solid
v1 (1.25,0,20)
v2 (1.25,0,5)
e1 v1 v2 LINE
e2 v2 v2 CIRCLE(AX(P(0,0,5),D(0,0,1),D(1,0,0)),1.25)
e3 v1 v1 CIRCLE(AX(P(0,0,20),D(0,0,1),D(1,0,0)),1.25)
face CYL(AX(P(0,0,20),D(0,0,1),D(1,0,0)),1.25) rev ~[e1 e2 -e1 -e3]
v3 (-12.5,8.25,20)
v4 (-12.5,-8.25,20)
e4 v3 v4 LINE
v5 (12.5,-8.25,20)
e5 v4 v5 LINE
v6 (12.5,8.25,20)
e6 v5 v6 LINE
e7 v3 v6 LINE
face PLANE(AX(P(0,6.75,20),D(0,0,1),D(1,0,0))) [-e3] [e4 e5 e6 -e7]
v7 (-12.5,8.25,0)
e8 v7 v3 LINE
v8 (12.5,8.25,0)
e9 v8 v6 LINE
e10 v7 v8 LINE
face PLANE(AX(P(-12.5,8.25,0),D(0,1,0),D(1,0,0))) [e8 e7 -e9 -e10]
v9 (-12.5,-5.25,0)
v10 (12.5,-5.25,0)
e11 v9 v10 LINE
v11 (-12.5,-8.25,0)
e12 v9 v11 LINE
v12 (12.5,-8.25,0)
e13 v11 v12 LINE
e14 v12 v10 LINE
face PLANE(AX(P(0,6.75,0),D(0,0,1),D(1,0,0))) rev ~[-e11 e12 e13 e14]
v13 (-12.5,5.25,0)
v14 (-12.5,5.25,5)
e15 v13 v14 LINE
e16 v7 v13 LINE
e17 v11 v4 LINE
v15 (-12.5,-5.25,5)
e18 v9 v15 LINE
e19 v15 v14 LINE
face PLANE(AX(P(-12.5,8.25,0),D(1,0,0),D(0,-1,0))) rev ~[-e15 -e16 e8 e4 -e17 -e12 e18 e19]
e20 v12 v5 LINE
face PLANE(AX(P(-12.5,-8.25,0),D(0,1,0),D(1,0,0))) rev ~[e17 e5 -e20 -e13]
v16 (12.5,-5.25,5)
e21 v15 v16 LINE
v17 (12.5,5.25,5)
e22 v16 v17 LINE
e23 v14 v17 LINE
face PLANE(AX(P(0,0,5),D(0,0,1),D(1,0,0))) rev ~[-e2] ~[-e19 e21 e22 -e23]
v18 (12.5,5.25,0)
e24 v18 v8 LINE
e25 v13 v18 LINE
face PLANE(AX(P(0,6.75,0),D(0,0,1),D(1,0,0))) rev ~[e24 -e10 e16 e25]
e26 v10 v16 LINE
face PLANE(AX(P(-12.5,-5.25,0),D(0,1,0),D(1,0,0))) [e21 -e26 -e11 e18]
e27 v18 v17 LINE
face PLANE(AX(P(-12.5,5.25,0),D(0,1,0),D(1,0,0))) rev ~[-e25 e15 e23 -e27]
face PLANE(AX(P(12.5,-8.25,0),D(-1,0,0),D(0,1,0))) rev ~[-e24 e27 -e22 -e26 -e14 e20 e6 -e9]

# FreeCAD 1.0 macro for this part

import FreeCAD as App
import Part
import Sketcher

V = App.Vector

doc = App.newDocument("Part")
body = doc.addObject("PartDesign::Body", "Body")

# Sketch on XY plane
sketch1 = body.newObject("Sketcher::SketchObject", "Sketch")
sketch1.AttachmentSupport = (doc.getObject("XY_Plane"), [""])
sketch1.MapMode = "FlatFace"
sketch1.addGeometry(Part.LineSegment(V(-12.5, 8.25, 0), V(-12.5, -8.25, 0)), False)
sketch1.addGeometry(Part.LineSegment(V(-12.5, -8.25, 0), V(12.5, -8.25, 0)), False)
sketch1.addGeometry(Part.LineSegment(V(12.5, -8.25, 0), V(12.5, 8.25, 0)), False)
sketch1.addGeometry(Part.LineSegment(V(12.5, 8.25, 0), V(-12.5, 8.25, 0)), False)
sketch1.addConstraint(Sketcher.Constraint("Coincident", 0, 2, 1, 1))
sketch1.addConstraint(Sketcher.Constraint("Coincident", 1, 2, 2, 1))
sketch1.addConstraint(Sketcher.Constraint("Coincident", 2, 2, 3, 1))
sketch1.addConstraint(Sketcher.Constraint("Coincident", 3, 2, 0, 1))
sketch1.addConstraint(Sketcher.Constraint("Vertical", 0))
sketch1.addConstraint(Sketcher.Constraint("Horizontal", 1))
sketch1.addConstraint(Sketcher.Constraint("Vertical", 2))
sketch1.addConstraint(Sketcher.Constraint("Horizontal", 3))
sketch1.addConstraint(Sketcher.Constraint("Symmetric", 0, 2, 2, 2, -1, 1))
sketch1.addConstraint(Sketcher.Constraint("DistanceX", 1, 1, 1, 2, 25.0))
sketch1.addConstraint(Sketcher.Constraint("DistanceY", 0, 2, 0, 1, 16.5))
pad1 = body.newObject("PartDesign::Pad", "Pad")
pad1.Profile = sketch1
pad1.Length = 20

# Sketch on XY plane
sketch2 = body.newObject("Sketcher::SketchObject", "Sketch001")
sketch2.AttachmentSupport = (doc.getObject("XY_Plane"), [""])
sketch2.MapMode = "FlatFace"
sketch2.addGeometry(Part.LineSegment(V(-12.5, 5.25, 0), V(-12.5, -5.25, 0)), False)
sketch2.addGeometry(Part.LineSegment(V(-12.5, -5.25, 0), V(12.5, -5.25, 0)), False)
sketch2.addGeometry(Part.LineSegment(V(12.5, -5.25, 0), V(12.5, 5.25, 0)), False)
sketch2.addGeometry(Part.LineSegment(V(12.5, 5.25, 0), V(-12.5, 5.25, 0)), False)
sketch2.addConstraint(Sketcher.Constraint("Coincident", 0, 2, 1, 1))
sketch2.addConstraint(Sketcher.Constraint("Coincident", 1, 2, 2, 1))
sketch2.addConstraint(Sketcher.Constraint("Coincident", 2, 2, 3, 1))
sketch2.addConstraint(Sketcher.Constraint("Coincident", 3, 2, 0, 1))
sketch2.addConstraint(Sketcher.Constraint("Vertical", 0))
sketch2.addConstraint(Sketcher.Constraint("Horizontal", 1))
sketch2.addConstraint(Sketcher.Constraint("Vertical", 2))
sketch2.addConstraint(Sketcher.Constraint("Horizontal", 3))
sketch2.addConstraint(Sketcher.Constraint("Symmetric", 0, 2, 2, 2, -1, 1))
sketch2.addConstraint(Sketcher.Constraint("DistanceX", 1, 1, 1, 2, 25.0))
sketch2.addConstraint(Sketcher.Constraint("DistanceY", 0, 2, 0, 1, 10.5))
pocket1 = body.newObject("PartDesign::Pocket", "Pocket")
pocket1.Profile = sketch2
pocket1.Length = 5
pocket1.Reversed = True

# Sketch on XY plane
sketch3 = body.newObject("Sketcher::SketchObject", "Sketch002")
sketch3.AttachmentSupport = (doc.getObject("XY_Plane"), [""])
sketch3.MapMode = "FlatFace"
sketch3.AttachmentOffset = App.Placement(V(0, 0, 20), App.Rotation())
sketch3.addGeometry(Part.Circle(V(0, 0, 0), V(0, 0, 1), 1.25), False)
sketch3.addConstraint(Sketcher.Constraint("Coincident", 0, 3, -1, 1))
sketch3.addConstraint(Sketcher.Constraint("Diameter", 0, 2.5))
pocket2 = body.newObject("PartDesign::Pocket", "Pocket001")
pocket2.Profile = sketch3
pocket2.Type = "ThroughAll"

doc.recompute()
